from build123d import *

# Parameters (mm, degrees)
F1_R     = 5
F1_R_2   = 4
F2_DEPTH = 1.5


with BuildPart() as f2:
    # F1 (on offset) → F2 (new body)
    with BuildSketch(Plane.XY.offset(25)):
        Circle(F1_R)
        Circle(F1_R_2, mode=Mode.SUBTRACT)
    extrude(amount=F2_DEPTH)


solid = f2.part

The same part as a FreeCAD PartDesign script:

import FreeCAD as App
import Part
import Sketcher

V = App.Vector

doc = App.newDocument("Part")
body = doc.addObject("PartDesign::Body", "Body")

# Sketch on XY plane
sketch1 = doc.addObject("Sketcher::SketchObject", "Sketch")
body.addObject(sketch1)
sketch1.AttachmentSupport = (doc.XY_Plane, [""])
sketch1.MapMode = "FlatFace"
sketch1.AttachmentOffset = App.Placement(V(0, 0, 25), App.Rotation())
sketch1.addGeometry(Part.Circle(V(0, 0, 0), V(0, 0, 1), 5), False)
sketch1.addGeometry(Part.Circle(V(0, 0, 0), V(0, 0, 1), 4), False)
sketch1.addConstraint(Sketcher.Constraint("Coincident", 0, 3, -1, 1))
sketch1.addConstraint(Sketcher.Constraint("Coincident", 1, 3, -1, 1))
sketch1.addConstraint(Sketcher.Constraint("Diameter", 0, 10.0))
sketch1.addConstraint(Sketcher.Constraint("Diameter", 1, 8.0))
pad1 = doc.addObject("PartDesign::Pad", "Pad")
body.addObject(pad1)
pad1.Profile = sketch1
pad1.Length = 1.5

doc.recompute()
